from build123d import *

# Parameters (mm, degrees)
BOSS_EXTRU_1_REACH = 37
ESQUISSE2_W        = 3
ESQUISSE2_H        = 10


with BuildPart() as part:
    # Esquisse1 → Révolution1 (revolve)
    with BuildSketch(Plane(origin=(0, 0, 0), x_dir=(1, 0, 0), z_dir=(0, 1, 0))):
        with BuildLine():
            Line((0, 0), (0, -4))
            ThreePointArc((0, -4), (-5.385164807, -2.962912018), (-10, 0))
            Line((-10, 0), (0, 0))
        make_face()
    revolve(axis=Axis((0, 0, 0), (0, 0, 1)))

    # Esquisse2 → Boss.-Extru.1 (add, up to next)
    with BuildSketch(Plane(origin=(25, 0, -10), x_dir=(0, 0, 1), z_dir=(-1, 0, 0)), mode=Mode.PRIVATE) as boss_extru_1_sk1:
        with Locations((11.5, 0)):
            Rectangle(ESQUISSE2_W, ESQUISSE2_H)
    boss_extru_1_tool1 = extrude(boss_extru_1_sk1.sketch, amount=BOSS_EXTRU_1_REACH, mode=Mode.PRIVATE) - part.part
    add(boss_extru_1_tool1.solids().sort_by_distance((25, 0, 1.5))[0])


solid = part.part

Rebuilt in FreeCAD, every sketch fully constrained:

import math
import FreeCAD as App
import Part
import Sketcher

V = App.Vector
Q = App.Units.Quantity

doc = App.newDocument("Part")
body = doc.addObject("PartDesign::Body", "Body")

# Sketch on XZ plane
sketch1 = body.newObject("Sketcher::SketchObject", "Sketch")
sketch1.AttachmentSupport = (doc.getObject("XZ_Plane"), [""])
sketch1.MapMode = "FlatFace"
sketch1.addGeometry(Part.LineSegment(V(0, 4, 0), V(0, 0, 0)), False)
sketch1.addGeometry(Part.LineSegment(V(0, 0, 0), V(-10, 0, 0)), False)
sketch1.addGeometry(Part.ArcOfCircle(Part.Circle(V(0, -10.5, 0), V(0, 0, 1), 14.5), math.radians(90), math.radians(134)), False)
sketch1.addConstraint(Sketcher.Constraint("Coincident", 0, 2, 1, 1))
sketch1.addConstraint(Sketcher.Constraint("Coincident", 1, 2, 2, 2))
sketch1.addConstraint(Sketcher.Constraint("Coincident", 2, 1, 0, 1))
sketch1.addConstraint(Sketcher.Constraint("Vertical", 0))
sketch1.addConstraint(Sketcher.Constraint("Horizontal", 1))
sketch1.addConstraint(Sketcher.Constraint("Coincident", 0, 2, -1, 1))
sketch1.addConstraint(Sketcher.Constraint("PointOnObject", 2, 3, -2))
sketch1.addConstraint(Sketcher.Constraint("Radius", 2, Q("14.5 mm")))
sketch1.addConstraint(Sketcher.Constraint("DistanceX", 1, 2, 1, 1, Q("10 mm")))
revolution = body.newObject("PartDesign::Revolution", "Revolution")
revolution.Profile = sketch1
revolution.ReferenceAxis = (sketch1, ["V_Axis"])
revolution.Angle = 360

# Sketch on YZ plane
sketch2 = body.newObject("Sketcher::SketchObject", "Sketch001")
sketch2.AttachmentSupport = (doc.getObject("YZ_Plane"), [""])
sketch2.MapMode = "FlatFace"
sketch2.AttachmentOffset = App.Placement(V(0, 0, 25), App.Rotation())
sketch2.addGeometry(Part.LineSegment(V(5, 0, 0), V(-5, 0, 0)), False)
sketch2.addGeometry(Part.LineSegment(V(-5, 0, 0), V(-5, 3, 0)), False)
sketch2.addGeometry(Part.LineSegment(V(-5, 3, 0), V(5, 3, 0)), False)
sketch2.addGeometry(Part.LineSegment(V(5, 3, 0), V(5, 0, 0)), False)
sketch2.addConstraint(Sketcher.Constraint("Coincident", 0, 2, 1, 1))
sketch2.addConstraint(Sketcher.Constraint("Coincident", 1, 2, 2, 1))
sketch2.addConstraint(Sketcher.Constraint("Coincident", 2, 2, 3, 1))
sketch2.addConstraint(Sketcher.Constraint("Coincident", 3, 2, 0, 1))
sketch2.addConstraint(Sketcher.Constraint("Horizontal", 0))
sketch2.addConstraint(Sketcher.Constraint("Vertical", 1))
sketch2.addConstraint(Sketcher.Constraint("Horizontal", 2))
sketch2.addConstraint(Sketcher.Constraint("Vertical", 3))
sketch2.addConstraint(Sketcher.Constraint("Symmetric", 0, 2, 3, 2, -1, 1))
sketch2.addConstraint(Sketcher.Constraint("DistanceX", 0, 2, 0, 1, Q("10 mm")))
sketch2.addConstraint(Sketcher.Constraint("DistanceY", 1, 1, 1, 2, Q("3 mm")))
pad1 = body.newObject("PartDesign::Pad", "Pad")
pad1.Profile = sketch2
pad1.Type = "UpToFirst"
pad1.Reversed = True

doc.recompute()
